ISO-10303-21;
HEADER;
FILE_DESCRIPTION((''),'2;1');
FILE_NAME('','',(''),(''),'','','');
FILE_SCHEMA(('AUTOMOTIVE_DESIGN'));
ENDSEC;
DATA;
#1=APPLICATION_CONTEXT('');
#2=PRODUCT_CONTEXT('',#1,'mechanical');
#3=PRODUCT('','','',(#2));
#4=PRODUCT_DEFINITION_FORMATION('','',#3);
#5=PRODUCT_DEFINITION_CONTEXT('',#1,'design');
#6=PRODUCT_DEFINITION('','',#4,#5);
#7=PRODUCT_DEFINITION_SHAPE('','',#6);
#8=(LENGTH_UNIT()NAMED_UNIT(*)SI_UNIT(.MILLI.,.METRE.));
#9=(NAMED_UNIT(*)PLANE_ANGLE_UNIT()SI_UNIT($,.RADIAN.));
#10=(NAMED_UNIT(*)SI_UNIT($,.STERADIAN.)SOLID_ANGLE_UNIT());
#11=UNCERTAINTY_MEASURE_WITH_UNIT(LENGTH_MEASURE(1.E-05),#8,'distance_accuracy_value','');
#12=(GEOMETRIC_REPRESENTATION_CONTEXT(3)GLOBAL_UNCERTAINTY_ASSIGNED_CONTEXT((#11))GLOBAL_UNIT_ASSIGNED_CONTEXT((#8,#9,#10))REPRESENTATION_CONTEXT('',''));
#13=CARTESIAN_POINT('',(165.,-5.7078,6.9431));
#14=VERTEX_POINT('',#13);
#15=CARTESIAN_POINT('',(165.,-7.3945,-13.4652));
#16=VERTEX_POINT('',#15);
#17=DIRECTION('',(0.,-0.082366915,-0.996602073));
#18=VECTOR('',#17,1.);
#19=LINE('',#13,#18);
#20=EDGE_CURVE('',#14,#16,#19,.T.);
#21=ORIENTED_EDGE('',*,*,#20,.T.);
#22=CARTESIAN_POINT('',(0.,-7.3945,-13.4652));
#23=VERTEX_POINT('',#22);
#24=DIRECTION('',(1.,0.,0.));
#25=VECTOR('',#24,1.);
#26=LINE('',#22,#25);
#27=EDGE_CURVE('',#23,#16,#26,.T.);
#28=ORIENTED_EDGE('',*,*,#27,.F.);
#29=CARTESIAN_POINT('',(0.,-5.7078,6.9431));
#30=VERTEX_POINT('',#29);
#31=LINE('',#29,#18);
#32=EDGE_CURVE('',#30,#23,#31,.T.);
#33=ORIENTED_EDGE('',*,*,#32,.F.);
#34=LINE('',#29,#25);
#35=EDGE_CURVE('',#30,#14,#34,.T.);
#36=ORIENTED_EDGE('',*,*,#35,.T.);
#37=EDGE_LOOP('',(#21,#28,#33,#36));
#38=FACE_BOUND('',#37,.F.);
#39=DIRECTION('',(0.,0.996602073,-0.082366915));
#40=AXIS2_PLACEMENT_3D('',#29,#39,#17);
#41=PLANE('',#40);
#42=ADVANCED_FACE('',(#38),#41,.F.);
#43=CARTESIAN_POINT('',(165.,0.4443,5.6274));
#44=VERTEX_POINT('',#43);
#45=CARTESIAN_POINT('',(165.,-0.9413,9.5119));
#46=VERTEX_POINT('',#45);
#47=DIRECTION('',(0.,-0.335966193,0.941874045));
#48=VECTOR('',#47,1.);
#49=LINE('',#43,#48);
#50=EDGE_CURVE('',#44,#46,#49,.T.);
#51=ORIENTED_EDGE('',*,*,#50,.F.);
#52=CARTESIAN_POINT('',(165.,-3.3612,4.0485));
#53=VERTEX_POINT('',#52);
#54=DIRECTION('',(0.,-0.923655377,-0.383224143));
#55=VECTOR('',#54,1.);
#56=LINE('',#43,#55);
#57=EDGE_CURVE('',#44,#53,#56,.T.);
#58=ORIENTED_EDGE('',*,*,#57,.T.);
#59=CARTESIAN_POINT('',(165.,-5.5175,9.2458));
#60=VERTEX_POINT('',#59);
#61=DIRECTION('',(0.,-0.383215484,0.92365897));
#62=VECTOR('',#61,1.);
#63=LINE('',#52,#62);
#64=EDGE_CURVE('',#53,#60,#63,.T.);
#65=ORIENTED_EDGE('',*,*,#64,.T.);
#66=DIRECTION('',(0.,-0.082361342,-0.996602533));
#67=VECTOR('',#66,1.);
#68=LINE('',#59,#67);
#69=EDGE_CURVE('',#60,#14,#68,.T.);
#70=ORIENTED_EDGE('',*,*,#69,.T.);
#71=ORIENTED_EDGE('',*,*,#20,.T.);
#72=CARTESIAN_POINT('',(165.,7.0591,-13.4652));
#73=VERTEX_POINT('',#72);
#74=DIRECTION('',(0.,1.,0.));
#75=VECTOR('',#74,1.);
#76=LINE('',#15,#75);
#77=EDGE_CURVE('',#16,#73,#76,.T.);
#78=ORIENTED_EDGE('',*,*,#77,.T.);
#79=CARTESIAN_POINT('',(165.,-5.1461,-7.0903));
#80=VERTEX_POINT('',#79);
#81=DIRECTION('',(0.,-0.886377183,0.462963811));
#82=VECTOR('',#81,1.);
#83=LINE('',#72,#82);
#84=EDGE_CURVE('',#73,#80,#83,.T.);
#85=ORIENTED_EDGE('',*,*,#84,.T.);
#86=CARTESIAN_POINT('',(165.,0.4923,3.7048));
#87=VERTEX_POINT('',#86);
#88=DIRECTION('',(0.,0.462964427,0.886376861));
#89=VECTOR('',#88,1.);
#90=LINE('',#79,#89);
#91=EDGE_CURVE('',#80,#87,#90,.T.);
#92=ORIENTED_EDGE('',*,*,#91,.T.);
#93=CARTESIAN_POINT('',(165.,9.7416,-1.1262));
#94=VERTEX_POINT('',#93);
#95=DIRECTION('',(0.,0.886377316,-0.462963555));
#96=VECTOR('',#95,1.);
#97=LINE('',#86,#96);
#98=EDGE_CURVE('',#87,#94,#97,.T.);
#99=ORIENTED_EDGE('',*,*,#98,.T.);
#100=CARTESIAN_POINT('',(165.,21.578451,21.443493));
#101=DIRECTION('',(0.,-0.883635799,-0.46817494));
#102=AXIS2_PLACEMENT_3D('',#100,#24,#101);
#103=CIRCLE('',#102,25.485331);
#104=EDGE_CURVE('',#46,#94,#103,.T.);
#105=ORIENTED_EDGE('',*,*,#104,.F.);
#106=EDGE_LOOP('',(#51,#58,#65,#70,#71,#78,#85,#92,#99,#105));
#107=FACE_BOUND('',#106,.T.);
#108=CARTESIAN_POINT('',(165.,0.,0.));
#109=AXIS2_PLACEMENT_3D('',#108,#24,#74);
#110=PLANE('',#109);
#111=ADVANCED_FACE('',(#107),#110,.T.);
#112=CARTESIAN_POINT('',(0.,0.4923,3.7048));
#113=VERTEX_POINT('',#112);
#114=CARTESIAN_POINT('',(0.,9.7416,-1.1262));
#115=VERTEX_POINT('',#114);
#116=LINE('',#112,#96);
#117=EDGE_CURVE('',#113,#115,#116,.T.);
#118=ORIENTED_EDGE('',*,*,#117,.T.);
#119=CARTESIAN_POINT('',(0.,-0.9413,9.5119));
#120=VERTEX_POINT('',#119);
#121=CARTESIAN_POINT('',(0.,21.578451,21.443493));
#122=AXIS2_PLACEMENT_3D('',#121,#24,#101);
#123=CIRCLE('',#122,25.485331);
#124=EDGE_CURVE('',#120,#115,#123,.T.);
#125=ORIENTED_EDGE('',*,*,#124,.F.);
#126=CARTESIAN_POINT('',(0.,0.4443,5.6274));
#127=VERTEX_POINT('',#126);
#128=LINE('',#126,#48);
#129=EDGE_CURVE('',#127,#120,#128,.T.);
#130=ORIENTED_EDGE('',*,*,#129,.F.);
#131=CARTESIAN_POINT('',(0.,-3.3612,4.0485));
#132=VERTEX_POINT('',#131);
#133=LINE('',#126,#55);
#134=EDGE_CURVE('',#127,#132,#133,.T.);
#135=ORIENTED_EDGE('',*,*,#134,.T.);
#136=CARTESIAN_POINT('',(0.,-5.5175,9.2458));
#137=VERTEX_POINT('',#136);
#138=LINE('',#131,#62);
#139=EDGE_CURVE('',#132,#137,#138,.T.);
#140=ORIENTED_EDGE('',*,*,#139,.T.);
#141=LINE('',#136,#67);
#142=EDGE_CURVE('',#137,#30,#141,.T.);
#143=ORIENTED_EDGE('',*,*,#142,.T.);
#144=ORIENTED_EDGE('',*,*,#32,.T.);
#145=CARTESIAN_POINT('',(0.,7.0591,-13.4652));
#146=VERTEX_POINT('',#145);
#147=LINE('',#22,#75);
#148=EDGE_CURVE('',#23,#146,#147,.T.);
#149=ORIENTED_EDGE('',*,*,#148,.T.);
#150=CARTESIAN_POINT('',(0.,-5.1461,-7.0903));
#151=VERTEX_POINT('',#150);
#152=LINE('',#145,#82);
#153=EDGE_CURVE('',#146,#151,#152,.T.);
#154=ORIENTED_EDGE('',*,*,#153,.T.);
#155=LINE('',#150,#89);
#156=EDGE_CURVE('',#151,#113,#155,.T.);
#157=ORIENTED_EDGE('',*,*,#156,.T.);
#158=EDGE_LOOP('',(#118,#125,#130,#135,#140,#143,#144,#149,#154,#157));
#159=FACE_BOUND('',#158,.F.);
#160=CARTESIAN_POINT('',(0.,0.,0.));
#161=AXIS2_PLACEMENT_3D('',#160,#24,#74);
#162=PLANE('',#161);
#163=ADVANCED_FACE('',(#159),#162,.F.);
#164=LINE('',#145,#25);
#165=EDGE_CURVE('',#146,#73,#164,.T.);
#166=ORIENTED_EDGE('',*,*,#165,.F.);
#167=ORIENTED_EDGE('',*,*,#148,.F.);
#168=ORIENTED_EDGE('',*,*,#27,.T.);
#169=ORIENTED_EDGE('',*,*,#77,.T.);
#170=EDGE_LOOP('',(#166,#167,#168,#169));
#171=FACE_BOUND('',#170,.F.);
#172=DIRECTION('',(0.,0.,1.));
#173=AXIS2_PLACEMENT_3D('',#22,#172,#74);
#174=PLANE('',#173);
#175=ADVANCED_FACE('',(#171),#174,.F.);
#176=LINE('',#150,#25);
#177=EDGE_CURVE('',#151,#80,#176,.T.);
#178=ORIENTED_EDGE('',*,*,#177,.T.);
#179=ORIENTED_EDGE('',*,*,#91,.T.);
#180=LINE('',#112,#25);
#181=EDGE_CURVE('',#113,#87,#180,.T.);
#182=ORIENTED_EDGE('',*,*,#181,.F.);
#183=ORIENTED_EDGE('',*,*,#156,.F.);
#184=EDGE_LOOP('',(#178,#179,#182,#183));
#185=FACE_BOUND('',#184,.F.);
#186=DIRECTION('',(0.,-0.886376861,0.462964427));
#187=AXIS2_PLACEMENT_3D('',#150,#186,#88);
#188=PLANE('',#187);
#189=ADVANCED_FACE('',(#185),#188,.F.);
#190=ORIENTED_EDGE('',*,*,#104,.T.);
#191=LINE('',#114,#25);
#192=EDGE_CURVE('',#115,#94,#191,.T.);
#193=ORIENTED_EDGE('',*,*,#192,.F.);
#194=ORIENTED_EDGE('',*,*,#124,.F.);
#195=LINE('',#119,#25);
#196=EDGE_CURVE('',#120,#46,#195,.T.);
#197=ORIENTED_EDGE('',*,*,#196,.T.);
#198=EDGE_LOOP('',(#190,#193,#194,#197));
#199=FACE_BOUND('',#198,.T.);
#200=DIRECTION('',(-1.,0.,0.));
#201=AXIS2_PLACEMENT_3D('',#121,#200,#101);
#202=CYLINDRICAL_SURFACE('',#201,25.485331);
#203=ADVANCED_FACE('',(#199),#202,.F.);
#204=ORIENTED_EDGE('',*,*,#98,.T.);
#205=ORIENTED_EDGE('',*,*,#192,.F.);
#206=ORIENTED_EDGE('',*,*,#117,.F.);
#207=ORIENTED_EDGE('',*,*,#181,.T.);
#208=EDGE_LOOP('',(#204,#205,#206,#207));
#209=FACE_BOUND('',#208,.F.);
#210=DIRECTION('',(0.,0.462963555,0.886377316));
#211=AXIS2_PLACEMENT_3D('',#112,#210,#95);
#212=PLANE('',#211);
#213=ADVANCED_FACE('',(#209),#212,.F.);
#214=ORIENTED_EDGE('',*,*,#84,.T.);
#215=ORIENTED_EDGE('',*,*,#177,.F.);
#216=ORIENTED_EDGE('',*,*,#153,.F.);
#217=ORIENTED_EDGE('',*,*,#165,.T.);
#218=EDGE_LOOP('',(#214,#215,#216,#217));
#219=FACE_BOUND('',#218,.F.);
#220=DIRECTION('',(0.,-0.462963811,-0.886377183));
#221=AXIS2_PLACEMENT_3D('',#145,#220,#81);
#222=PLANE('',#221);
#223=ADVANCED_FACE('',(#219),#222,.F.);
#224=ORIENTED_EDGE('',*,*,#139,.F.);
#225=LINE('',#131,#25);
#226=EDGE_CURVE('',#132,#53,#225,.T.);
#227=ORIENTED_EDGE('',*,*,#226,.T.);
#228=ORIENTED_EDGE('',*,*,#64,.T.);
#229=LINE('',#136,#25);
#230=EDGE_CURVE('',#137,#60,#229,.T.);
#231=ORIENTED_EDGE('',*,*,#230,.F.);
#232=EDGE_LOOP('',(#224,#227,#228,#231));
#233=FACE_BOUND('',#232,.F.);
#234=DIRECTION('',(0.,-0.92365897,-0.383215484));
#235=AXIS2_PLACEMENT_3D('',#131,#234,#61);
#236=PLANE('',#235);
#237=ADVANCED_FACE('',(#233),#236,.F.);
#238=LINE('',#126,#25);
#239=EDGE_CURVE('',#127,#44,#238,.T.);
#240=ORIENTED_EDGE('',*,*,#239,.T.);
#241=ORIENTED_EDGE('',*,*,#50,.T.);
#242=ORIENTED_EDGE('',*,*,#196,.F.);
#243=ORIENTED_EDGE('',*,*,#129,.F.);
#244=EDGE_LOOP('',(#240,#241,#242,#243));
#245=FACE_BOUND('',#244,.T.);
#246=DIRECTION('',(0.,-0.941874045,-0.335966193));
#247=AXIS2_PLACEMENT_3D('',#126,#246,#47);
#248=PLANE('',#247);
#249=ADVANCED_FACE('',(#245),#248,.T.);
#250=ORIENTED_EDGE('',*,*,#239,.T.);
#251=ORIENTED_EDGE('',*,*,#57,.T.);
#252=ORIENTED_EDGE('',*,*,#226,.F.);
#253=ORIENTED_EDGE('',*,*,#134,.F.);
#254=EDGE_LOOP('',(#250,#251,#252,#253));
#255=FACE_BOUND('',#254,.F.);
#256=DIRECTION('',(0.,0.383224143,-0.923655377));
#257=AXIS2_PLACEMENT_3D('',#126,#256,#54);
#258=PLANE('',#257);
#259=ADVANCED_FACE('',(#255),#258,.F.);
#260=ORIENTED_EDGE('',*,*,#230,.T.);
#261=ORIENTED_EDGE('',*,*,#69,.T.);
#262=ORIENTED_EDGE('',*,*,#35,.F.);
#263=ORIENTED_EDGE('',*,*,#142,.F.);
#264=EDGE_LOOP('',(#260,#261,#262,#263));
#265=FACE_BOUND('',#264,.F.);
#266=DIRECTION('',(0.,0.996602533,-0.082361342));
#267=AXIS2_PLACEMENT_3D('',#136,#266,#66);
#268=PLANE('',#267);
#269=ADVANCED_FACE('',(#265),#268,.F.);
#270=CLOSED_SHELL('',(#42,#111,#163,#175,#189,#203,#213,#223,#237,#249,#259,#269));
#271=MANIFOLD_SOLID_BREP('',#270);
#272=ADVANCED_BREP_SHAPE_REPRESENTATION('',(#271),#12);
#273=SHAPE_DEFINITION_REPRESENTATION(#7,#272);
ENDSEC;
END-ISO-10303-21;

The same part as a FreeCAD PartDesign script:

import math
import FreeCAD as App
import Part
import Sketcher
from FreeCAD import Vector
Q = App.Units.Quantity

doc = App.newDocument("Part")
body = doc.addObject("PartDesign::Body", "Body")

sketch1 = body.newObject("Sketcher::SketchObject", "Sketch")
sketch1.AttachmentSupport = (doc.getObject("YZ_Plane"), [""])
sketch1.MapMode = "FlatFace"
sketch1.addGeometry(Part.LineSegment(Vector(-0.9413, 9.5119, 0), Vector(0.4443, 5.6274, 0)), False)
sketch1.addGeometry(Part.LineSegment(Vector(0.4443, 5.6274, 0), Vector(-3.3612, 4.0485, 0)), False)
sketch1.addGeometry(Part.LineSegment(Vector(-3.3612, 4.0485, 0), Vector(-5.5175, 9.2458, 0)), False)
sketch1.addGeometry(Part.LineSegment(Vector(-5.5175, 9.2458, 0), Vector(-5.7078, 6.9431, 0)), False)
sketch1.addGeometry(Part.LineSegment(Vector(-5.7078, 6.9431, 0), Vector(-7.3945, -13.4652, 0)), False)
sketch1.addGeometry(Part.LineSegment(Vector(-7.3945, -13.4652, 0), Vector(7.0591, -13.4652, 0)), False)
sketch1.addGeometry(Part.LineSegment(Vector(7.0591, -13.4652, 0), Vector(-5.1461, -7.0903, 0)), False)
sketch1.addGeometry(Part.LineSegment(Vector(-5.1461, -7.0903, 0), Vector(0.4923, 3.7048, 0)), False)
sketch1.addGeometry(Part.LineSegment(Vector(0.4923, 3.7048, 0), Vector(9.7416, -1.1262, 0)), False)
sketch1.addGeometry(Part.ArcOfCircle(Part.Circle(Vector(21.579, 21.4439, 0), Vector(0, 0, 1), 25.486007), math.radians(-152.083877), math.radians(-117.675781)), False)
sketch1.addConstraint(Sketcher.Constraint("Coincident", 0, 2, 1, 1))
sketch1.addConstraint(Sketcher.Constraint("Coincident", 1, 2, 2, 1))
sketch1.addConstraint(Sketcher.Constraint("Coincident", 2, 2, 3, 1))
sketch1.addConstraint(Sketcher.Constraint("Coincident", 3, 2, 4, 1))
sketch1.addConstraint(Sketcher.Constraint("Coincident", 4, 2, 5, 1))
sketch1.addConstraint(Sketcher.Constraint("Coincident", 5, 2, 6, 1))
sketch1.addConstraint(Sketcher.Constraint("Coincident", 6, 2, 7, 1))
sketch1.addConstraint(Sketcher.Constraint("Coincident", 7, 2, 8, 1))
sketch1.addConstraint(Sketcher.Constraint("Coincident", 8, 2, 9, 2))
sketch1.addConstraint(Sketcher.Constraint("Coincident", 9, 1, 0, 1))
sketch1.addConstraint(Sketcher.Constraint("Horizontal", 5))
sketch1.addConstraint(Sketcher.Constraint("Radius", 9, Q("25.486 mm")))
sketch1.addConstraint(Sketcher.Constraint("DistanceX", 3, 2, 7, 2, Q("6.2 mm")))
sketch1.addConstraint(Sketcher.Constraint("Distance", 1, Q("4.12 mm")))
sketch1.addConstraint(Sketcher.Constraint("DistanceX", 1, 2, 9, 1, Q("2.42 mm")))
sketch1.addConstraint(Sketcher.Constraint("Distance", 4, Q("20.478 mm")))
sketch1.addConstraint(Sketcher.Constraint("Distance", 7, Q("12.179 mm")))
sketch1.addConstraint(Sketcher.Constraint("Distance", 8, Q("10.435 mm")))
sketch1.addConstraint(Sketcher.Constraint("DistanceX", 5, 1, 5, 2, Q("14.4536 mm")))
sketch1.addConstraint(Sketcher.Constraint("DistanceX", -1, 1, 9, 3, Q("21.579 mm")))
sketch1.addConstraint(Sketcher.Constraint("DistanceY", -1, 1, 9, 3, Q("21.444 mm")))
sketch1.addConstraint(Sketcher.Constraint("DistanceY", -1, 1, 3, 2, Q("6.943 mm")))
sketch1.addConstraint(Sketcher.Constraint("DistanceX", -1, 1, 5, 2, Q("7.059 mm")))
sketch1.addConstraint(Sketcher.Constraint("DistanceX", 6, 2, -1, 1, Q("5.146 mm")))
sketch1.addConstraint(Sketcher.Constraint("DistanceY", -1, 1, 9, 1, Q("9.512 mm")))
sketch1.addConstraint(Sketcher.Constraint("DistanceY", 1, 2, 0, 2, Q("1.579 mm")))
sketch1.addConstraint(Sketcher.Constraint("DistanceY", 2, 2, 9, 3, Q("12.198 mm")))
sketch1.addConstraint(Sketcher.Constraint("DistanceX", 3, 2, 0, 2, Q("6.152 mm")))
sketch1.addConstraint(Sketcher.Constraint("DistanceX", 4, 2, 2, 2, Q("1.877 mm")))
sketch1.addConstraint(Sketcher.Constraint("DistanceY", 4, 2, 6, 2, Q("6.375 mm")))
sketch1.addConstraint(Sketcher.Constraint("Distance", 0, Q("4.1242 mm")))
pad1 = body.newObject("PartDesign::Pad", "Pad")
pad1.Profile = sketch1
pad1.Length = 165

doc.recompute()
